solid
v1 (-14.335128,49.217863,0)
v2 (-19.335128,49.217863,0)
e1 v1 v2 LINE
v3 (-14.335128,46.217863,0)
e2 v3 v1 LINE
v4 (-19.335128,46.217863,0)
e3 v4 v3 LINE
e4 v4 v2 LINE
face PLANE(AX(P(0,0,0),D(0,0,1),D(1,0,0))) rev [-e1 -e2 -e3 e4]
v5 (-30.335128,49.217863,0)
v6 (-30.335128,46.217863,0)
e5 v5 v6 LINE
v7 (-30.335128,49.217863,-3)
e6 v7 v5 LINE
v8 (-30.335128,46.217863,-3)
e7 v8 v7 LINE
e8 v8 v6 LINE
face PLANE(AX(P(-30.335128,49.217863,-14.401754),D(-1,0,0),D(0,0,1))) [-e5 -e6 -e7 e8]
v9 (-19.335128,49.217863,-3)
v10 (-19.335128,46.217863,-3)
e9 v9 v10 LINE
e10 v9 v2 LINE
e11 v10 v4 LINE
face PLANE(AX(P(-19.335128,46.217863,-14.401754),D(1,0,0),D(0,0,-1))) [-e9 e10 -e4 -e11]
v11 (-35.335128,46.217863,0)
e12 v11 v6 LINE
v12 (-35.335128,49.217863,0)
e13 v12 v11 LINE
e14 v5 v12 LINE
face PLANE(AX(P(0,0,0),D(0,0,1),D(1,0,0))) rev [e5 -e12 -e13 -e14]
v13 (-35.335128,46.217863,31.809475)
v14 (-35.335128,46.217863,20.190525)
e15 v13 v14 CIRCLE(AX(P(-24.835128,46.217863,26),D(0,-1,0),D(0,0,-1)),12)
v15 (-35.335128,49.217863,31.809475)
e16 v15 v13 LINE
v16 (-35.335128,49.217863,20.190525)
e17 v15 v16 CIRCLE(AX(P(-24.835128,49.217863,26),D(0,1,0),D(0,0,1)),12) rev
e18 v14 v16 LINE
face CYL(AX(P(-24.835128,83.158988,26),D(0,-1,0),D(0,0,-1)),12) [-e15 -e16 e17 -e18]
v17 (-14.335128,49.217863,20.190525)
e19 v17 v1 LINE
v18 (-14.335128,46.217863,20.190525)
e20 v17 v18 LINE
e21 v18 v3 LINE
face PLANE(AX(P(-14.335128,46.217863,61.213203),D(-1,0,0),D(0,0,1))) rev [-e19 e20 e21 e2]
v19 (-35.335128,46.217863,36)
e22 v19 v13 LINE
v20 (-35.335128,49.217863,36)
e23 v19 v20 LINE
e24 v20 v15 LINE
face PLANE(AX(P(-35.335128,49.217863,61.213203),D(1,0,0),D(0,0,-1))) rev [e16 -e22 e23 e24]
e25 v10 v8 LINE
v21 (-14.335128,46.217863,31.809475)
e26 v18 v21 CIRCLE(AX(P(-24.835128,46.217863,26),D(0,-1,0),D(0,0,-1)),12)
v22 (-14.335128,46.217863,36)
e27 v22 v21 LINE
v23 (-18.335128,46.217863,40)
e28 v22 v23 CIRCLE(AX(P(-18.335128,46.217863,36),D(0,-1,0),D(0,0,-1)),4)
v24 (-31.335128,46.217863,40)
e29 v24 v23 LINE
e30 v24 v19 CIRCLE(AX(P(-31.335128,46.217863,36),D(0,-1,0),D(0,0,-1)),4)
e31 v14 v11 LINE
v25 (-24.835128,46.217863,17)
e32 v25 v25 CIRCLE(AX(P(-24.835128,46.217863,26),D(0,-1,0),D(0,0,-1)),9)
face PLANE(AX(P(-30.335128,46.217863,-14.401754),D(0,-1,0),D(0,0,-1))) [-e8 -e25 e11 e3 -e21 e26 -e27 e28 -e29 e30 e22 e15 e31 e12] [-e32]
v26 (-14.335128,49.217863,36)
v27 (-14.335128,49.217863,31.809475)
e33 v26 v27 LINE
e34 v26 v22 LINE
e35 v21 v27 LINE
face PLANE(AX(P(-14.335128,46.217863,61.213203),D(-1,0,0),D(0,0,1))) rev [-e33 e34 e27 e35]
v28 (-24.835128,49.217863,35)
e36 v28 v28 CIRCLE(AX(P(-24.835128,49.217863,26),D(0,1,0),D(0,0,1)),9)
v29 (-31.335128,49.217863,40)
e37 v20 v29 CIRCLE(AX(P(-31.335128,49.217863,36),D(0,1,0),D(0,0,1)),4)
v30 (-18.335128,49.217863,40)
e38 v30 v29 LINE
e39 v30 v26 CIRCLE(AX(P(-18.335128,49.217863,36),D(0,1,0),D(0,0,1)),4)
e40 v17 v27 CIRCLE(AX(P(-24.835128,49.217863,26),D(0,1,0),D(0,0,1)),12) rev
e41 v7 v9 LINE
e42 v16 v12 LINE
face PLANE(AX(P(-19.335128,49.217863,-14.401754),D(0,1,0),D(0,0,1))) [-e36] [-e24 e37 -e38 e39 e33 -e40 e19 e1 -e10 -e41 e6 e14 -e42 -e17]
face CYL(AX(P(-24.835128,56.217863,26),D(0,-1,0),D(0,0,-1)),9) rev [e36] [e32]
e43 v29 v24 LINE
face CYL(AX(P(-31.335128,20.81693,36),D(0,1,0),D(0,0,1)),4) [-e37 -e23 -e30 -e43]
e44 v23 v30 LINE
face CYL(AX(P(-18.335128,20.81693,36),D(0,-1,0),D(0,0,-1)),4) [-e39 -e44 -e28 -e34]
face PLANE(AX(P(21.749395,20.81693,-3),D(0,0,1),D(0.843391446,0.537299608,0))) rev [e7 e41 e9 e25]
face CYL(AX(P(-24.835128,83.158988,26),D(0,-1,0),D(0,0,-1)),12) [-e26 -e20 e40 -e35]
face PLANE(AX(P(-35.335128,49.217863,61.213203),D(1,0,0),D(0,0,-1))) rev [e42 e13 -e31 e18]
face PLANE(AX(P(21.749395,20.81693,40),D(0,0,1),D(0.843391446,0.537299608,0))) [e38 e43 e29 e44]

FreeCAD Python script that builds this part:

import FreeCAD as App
import Part
import Sketcher


def edges_at(feature, points):
    """Names of the edges that pass closest to the given points."""
    edges = feature.Shape.Edges
    near = lambda p: min(range(len(edges)), key=lambda i: edges[i].distToShape(Part.Vertex(*p))[0])
    return sorted({f"Edge{near(p) + 1}" for p in points})

doc = App.newDocument("Part")
body = doc.addObject("PartDesign::Body", "Body")

sketch1 = body.newObject("Sketcher::SketchObject", "Sketch")
sketch1.AttachmentSupport = (doc.getObject("XY_Plane"), [""])
sketch1.MapMode = "FlatFace"
sketch1.addGeometry(Part.LineSegment(App.Vector(-30.335128, 49.217863, 0), App.Vector(-30.335128, 46.217863, 0)), False)
sketch1.addGeometry(Part.LineSegment(App.Vector(-30.335128, 46.217863, 0), App.Vector(-19.335128, 46.217863, 0)), False)
sketch1.addGeometry(Part.LineSegment(App.Vector(-19.335128, 46.217863, 0), App.Vector(-19.335128, 49.217863, 0)), False)
sketch1.addGeometry(Part.LineSegment(App.Vector(-19.335128, 49.217863, 0), App.Vector(-30.335128, 49.217863, 0)), False)
sketch1.addConstraint(Sketcher.Constraint("Coincident", 0, 2, 1, 1))
sketch1.addConstraint(Sketcher.Constraint("Coincident", 1, 2, 2, 1))
sketch1.addConstraint(Sketcher.Constraint("Coincident", 2, 2, 3, 1))
sketch1.addConstraint(Sketcher.Constraint("Coincident", 3, 2, 0, 1))
sketch1.addConstraint(Sketcher.Constraint("Vertical", 0))
sketch1.addConstraint(Sketcher.Constraint("Horizontal", 1))
sketch1.addConstraint(Sketcher.Constraint("Vertical", 2))
sketch1.addConstraint(Sketcher.Constraint("Horizontal", 3))
sketch1.addConstraint(Sketcher.Constraint("DistanceX", 1, 1, 1, 2, 11.0))
sketch1.addConstraint(Sketcher.Constraint("DistanceY", 0, 2, 0, 1, 3.0))
sketch1.addConstraint(Sketcher.Constraint("DistanceX", 0, 2, -1, 1, 30.335128))
sketch1.addConstraint(Sketcher.Constraint("DistanceY", -1, 1, 0, 2, 46.217863))
pad1 = body.newObject("PartDesign::Pad", "Pad")
pad1.Profile = sketch1
pad1.Length = 3
pad1.Reversed = True

sketch2 = body.newObject("Sketcher::SketchObject", "Sketch001")
sketch2.AttachmentSupport = (doc.getObject("XY_Plane"), [""])
sketch2.MapMode = "FlatFace"
sketch2.addGeometry(Part.LineSegment(App.Vector(-35.335128, 49.217863, 0), App.Vector(-35.335128, 46.217863, 0)), False)
sketch2.addGeometry(Part.LineSegment(App.Vector(-35.335128, 46.217863, 0), App.Vector(-14.335128, 46.217863, 0)), False)
sketch2.addGeometry(Part.LineSegment(App.Vector(-14.335128, 46.217863, 0), App.Vector(-14.335128, 49.217863, 0)), False)
sketch2.addGeometry(Part.LineSegment(App.Vector(-14.335128, 49.217863, 0), App.Vector(-35.335128, 49.217863, 0)), False)
sketch2.addConstraint(Sketcher.Constraint("Coincident", 0, 2, 1, 1))
sketch2.addConstraint(Sketcher.Constraint("Coincident", 1, 2, 2, 1))
sketch2.addConstraint(Sketcher.Constraint("Coincident", 2, 2, 3, 1))
sketch2.addConstraint(Sketcher.Constraint("Coincident", 3, 2, 0, 1))
sketch2.addConstraint(Sketcher.Constraint("Vertical", 0))
sketch2.addConstraint(Sketcher.Constraint("Horizontal", 1))
sketch2.addConstraint(Sketcher.Constraint("Vertical", 2))
sketch2.addConstraint(Sketcher.Constraint("Horizontal", 3))
sketch2.addConstraint(Sketcher.Constraint("DistanceX", 1, 1, 1, 2, 21.0))
sketch2.addConstraint(Sketcher.Constraint("DistanceY", 0, 2, 0, 1, 3.0))
sketch2.addConstraint(Sketcher.Constraint("DistanceX", 0, 2, -1, 1, 35.335128))
sketch2.addConstraint(Sketcher.Constraint("DistanceY", -1, 1, 0, 2, 46.217863))
pad2 = body.newObject("PartDesign::Pad", "Pad001")
pad2.Profile = sketch2
pad2.Length = 40

sketch3 = body.newObject("Sketcher::SketchObject", "Sketch002")
sketch3.AttachmentSupport = (doc.getObject("XZ_Plane"), [""])
sketch3.MapMode = "FlatFace"
sketch3.AttachmentOffset = App.Placement(App.Vector(0, 0, -46.217863), App.Rotation())
sketch3.addGeometry(Part.Circle(App.Vector(-24.835128, 26, 0), App.Vector(0, 0, 1), 9), False)
sketch3.addConstraint(Sketcher.Constraint("Diameter", 0, 18.0))
sketch3.addConstraint(Sketcher.Constraint("DistanceY", -1, 1, 0, 3, 26.0))
sketch3.addConstraint(Sketcher.Constraint("DistanceX", 0, 3, -1, 1, 24.835128))
pocket1 = body.newObject("PartDesign::Pocket", "Pocket")
pocket1.Profile = sketch3
pocket1.Length = 10

sketch4 = body.newObject("Sketcher::SketchObject", "Sketch003")
sketch4.AttachmentSupport = (doc.getObject("XZ_Plane"), [""])
sketch4.MapMode = "FlatFace"
sketch4.AttachmentOffset = App.Placement(App.Vector(0, 0, -46.217863), App.Rotation())
sketch4.addGeometry(Part.Circle(App.Vector(-24.835128, 26, 0), App.Vector(0, 0, 1), 12), False)
sketch4.addGeometry(Part.Circle(App.Vector(-24.835128, 26, 0), App.Vector(0, 0, 1), 9), False)
sketch4.addConstraint(Sketcher.Constraint("Coincident", 1, 3, 0, 3))
sketch4.addConstraint(Sketcher.Constraint("Diameter", 0, 24.0))
sketch4.addConstraint(Sketcher.Constraint("Diameter", 1, 18.0))
sketch4.addConstraint(Sketcher.Constraint("DistanceY", -1, 1, 0, 3, 26.0))
sketch4.addConstraint(Sketcher.Constraint("DistanceX", 0, 3, -1, 1, 24.835128))
pad3 = body.newObject("PartDesign::Pad", "Pad002")
pad3.Profile = sketch4
pad3.Length = 3
pad3.Reversed = True
doc.recompute()

fillet = body.newObject("PartDesign::Fillet", "Fillet")
fillet.Base = (pad3, edges_at(pad3, [(-35.335, 47.718, 40), (-14.335, 47.718, 40)]))
fillet.Radius = 4

doc.recompute()
